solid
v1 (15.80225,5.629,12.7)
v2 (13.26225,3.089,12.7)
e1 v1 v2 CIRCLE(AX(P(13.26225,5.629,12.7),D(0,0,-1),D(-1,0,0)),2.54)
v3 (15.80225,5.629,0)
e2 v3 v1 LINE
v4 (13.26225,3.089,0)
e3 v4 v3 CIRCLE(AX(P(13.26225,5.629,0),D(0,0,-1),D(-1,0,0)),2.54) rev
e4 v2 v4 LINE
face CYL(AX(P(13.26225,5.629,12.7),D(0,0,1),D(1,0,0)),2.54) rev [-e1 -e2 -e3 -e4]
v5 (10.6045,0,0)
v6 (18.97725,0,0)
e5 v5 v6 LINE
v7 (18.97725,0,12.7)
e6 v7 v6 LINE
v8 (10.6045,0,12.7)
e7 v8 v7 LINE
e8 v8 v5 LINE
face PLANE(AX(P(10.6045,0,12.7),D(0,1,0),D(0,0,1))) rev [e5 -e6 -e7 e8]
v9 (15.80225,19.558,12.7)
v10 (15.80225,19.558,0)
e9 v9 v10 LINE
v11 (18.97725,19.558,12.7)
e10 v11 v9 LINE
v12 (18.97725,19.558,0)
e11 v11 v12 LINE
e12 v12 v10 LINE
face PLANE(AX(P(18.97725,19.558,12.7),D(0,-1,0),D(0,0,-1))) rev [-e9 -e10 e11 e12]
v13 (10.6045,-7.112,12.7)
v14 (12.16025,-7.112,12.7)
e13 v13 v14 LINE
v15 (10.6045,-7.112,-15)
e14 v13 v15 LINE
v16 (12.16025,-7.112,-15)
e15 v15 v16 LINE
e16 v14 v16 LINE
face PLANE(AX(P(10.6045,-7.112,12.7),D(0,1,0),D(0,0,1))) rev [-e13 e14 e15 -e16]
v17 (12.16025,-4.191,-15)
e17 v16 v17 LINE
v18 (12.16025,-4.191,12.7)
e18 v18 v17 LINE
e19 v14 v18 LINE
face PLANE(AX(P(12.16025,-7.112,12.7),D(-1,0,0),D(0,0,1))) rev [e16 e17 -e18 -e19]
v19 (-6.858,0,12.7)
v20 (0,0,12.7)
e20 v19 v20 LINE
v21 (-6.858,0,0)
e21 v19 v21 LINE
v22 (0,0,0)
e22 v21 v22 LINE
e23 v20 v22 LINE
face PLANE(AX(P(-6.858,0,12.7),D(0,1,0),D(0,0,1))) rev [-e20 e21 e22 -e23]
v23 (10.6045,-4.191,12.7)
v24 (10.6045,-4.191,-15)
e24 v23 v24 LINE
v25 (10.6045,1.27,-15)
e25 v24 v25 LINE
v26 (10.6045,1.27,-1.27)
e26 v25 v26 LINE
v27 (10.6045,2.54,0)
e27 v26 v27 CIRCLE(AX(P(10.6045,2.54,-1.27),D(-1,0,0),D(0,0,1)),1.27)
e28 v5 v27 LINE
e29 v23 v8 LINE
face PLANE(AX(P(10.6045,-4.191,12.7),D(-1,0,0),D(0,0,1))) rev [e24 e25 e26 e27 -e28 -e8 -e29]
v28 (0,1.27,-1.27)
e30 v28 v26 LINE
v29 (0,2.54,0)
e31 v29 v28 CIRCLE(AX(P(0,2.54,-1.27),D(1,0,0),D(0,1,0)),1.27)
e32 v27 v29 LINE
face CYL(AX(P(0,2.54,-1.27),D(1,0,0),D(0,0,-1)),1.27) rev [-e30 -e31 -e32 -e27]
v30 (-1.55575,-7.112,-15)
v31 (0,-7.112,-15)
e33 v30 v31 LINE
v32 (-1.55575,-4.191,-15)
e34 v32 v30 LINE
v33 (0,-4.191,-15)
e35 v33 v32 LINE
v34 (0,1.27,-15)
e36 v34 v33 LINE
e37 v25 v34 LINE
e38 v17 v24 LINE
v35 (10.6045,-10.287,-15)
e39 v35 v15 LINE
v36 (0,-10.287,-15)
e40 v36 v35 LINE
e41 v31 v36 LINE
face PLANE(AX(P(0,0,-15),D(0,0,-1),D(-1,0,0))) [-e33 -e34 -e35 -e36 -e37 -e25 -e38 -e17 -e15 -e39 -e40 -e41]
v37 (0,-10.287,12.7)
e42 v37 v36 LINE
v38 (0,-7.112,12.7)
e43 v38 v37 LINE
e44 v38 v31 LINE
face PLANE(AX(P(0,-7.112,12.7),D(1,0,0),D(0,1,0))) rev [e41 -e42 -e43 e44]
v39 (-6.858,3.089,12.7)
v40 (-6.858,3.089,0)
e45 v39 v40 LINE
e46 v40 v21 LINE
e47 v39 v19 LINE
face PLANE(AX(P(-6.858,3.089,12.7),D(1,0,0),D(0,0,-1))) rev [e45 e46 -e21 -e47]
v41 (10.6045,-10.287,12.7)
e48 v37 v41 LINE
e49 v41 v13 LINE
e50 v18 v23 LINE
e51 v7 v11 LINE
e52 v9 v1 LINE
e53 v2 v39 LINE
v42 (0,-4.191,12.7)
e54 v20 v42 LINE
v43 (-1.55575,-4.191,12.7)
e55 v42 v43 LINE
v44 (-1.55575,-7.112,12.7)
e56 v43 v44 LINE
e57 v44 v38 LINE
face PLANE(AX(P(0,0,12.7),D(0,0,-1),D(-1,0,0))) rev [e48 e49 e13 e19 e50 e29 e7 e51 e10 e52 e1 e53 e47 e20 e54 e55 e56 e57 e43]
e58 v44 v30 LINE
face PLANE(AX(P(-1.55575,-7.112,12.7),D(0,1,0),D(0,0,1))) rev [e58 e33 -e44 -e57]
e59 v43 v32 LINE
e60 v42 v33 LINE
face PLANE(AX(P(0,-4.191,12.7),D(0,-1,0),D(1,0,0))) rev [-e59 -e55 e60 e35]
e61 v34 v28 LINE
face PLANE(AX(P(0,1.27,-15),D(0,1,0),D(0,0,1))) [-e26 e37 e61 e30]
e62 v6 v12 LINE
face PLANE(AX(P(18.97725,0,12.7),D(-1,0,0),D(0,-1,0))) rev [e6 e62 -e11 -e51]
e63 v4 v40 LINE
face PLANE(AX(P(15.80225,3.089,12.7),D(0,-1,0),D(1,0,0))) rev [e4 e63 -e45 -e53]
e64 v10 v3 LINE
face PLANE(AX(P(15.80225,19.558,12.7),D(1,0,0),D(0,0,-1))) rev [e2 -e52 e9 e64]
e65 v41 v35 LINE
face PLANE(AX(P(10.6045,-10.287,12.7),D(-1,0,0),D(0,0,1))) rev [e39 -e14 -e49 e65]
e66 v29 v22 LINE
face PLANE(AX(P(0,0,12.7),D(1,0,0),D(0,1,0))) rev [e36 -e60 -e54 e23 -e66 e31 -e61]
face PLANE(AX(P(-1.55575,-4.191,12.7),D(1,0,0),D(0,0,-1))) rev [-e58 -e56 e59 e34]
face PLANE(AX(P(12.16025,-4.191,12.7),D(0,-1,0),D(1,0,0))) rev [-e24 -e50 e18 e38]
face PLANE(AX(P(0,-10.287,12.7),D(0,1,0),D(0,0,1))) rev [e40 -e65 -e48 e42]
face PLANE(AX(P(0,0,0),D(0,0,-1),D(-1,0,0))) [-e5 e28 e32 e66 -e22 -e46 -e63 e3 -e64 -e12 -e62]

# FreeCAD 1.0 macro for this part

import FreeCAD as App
import Part
import Sketcher
Q = App.Units.Quantity


def edges_at(feature, points):
    """Names of the edges that pass closest to the given points."""
    edges = feature.Shape.Edges
    near = lambda p: min(range(len(edges)), key=lambda i: edges[i].distToShape(Part.Vertex(*p))[0])
    return sorted({f"Edge{near(p) + 1}" for p in points})

doc = App.newDocument("Part")
body = doc.addObject("PartDesign::Body", "Body")

# Sketch on XY plane
sketch1 = doc.addObject("Sketcher::SketchObject", "Sketch")
body.addObject(sketch1)
sketch1.AttachmentSupport = (doc.XY_Plane, [""])
sketch1.MapMode = "FlatFace"
sketch1.addGeometry([
    Part.LineSegment(App.Vector(0, 0, 0), App.Vector(0, -4.191, 0)),  # 0
    Part.LineSegment(App.Vector(0, -4.191, 0), App.Vector(-1.55575, -4.191, 0)),  # 1
    Part.LineSegment(App.Vector(-1.55575, -4.191, 0), App.Vector(-1.55575, -7.112, 0)),  # 2
    Part.LineSegment(App.Vector(-1.55575, -7.112, 0), App.Vector(0, -7.112, 0)),  # 3
    Part.LineSegment(App.Vector(0, -7.112, 0), App.Vector(0, -10.287, 0)),  # 4
    Part.LineSegment(App.Vector(0, -10.287, 0), App.Vector(10.6045, -10.287, 0)),  # 5
    Part.LineSegment(App.Vector(10.6045, -10.287, 0), App.Vector(10.6045, -7.112, 0)),  # 6
    Part.LineSegment(App.Vector(10.6045, -7.112, 0), App.Vector(12.16025, -7.112, 0)),  # 7
    Part.LineSegment(App.Vector(12.16025, -7.112, 0), App.Vector(12.16025, -4.191, 0)),  # 8
    Part.LineSegment(App.Vector(12.16025, -4.191, 0), App.Vector(10.6045, -4.191, 0)),  # 9
    Part.LineSegment(App.Vector(10.6045, -4.191, 0), App.Vector(10.6045, 0, 0)),  # 10
    Part.LineSegment(App.Vector(10.6045, 0, 0), App.Vector(18.97725, 0, 0)),  # 11
    Part.LineSegment(App.Vector(18.97725, 0, 0), App.Vector(18.97725, 19.558, 0)),  # 12
    Part.LineSegment(App.Vector(18.97725, 19.558, 0), App.Vector(15.80225, 19.558, 0)),  # 13
    Part.LineSegment(App.Vector(15.80225, 19.558, 0), App.Vector(15.80225, 3.089, 0)),  # 14
    Part.LineSegment(App.Vector(15.80225, 3.089, 0), App.Vector(-6.858, 3.089, 0)),  # 15
    Part.LineSegment(App.Vector(-6.858, 3.089, 0), App.Vector(-6.858, 0, 0)),  # 16
    Part.LineSegment(App.Vector(-6.858, 0, 0), App.Vector(0, 0, 0)),  # 17
], False)
sketch1.addConstraint([
    Sketcher.Constraint("Coincident", 0, 2, 1, 1),
    Sketcher.Constraint("Coincident", 1, 2, 2, 1),
    Sketcher.Constraint("Coincident", 2, 2, 3, 1),
    Sketcher.Constraint("Coincident", 3, 2, 4, 1),
    Sketcher.Constraint("Coincident", 4, 2, 5, 1),
    Sketcher.Constraint("Coincident", 5, 2, 6, 1),
    Sketcher.Constraint("Coincident", 6, 2, 7, 1),
    Sketcher.Constraint("Coincident", 7, 2, 8, 1),
    Sketcher.Constraint("Coincident", 8, 2, 9, 1),
    Sketcher.Constraint("Coincident", 9, 2, 10, 1),
    Sketcher.Constraint("Coincident", 10, 2, 11, 1),
    Sketcher.Constraint("Coincident", 11, 2, 12, 1),
    Sketcher.Constraint("Coincident", 12, 2, 13, 1),
    Sketcher.Constraint("Coincident", 13, 2, 14, 1),
    Sketcher.Constraint("Coincident", 14, 2, 15, 1),
    Sketcher.Constraint("Coincident", 15, 2, 16, 1),
    Sketcher.Constraint("Coincident", 16, 2, 17, 1),
    Sketcher.Constraint("Coincident", 17, 2, 0, 1),
    Sketcher.Constraint("Vertical", 0),
    Sketcher.Constraint("Horizontal", 1),
    Sketcher.Constraint("Vertical", 2),
    Sketcher.Constraint("Horizontal", 3),
    Sketcher.Constraint("Vertical", 4),
    Sketcher.Constraint("Horizontal", 5),
    Sketcher.Constraint("Vertical", 6),
    Sketcher.Constraint("Horizontal", 7),
    Sketcher.Constraint("Vertical", 8),
    Sketcher.Constraint("Horizontal", 9),
    Sketcher.Constraint("Vertical", 10),
    Sketcher.Constraint("Horizontal", 11),
    Sketcher.Constraint("Vertical", 12),
    Sketcher.Constraint("Horizontal", 13),
    Sketcher.Constraint("Vertical", 14),
    Sketcher.Constraint("Horizontal", 15),
    Sketcher.Constraint("Vertical", 16),
    Sketcher.Constraint("Horizontal", 17),
    Sketcher.Constraint("Coincident", 17, 2, -1, 1),
    Sketcher.Constraint("PointOnObject", 3, 2, -2),
    Sketcher.Constraint("PointOnObject", 10, 2, -1),
    Sketcher.Constraint("Horizontal", 3, 2, 6, 2),
    Sketcher.Constraint("Horizontal", 1, 2, 8, 2),
    Sketcher.Constraint("Vertical", 6, 2, 9, 2),
    Sketcher.Constraint("Equal", 3, 7),
    Sketcher.Constraint("Equal", 13, 4),
    Sketcher.Constraint("DistanceX", 17, 1, 17, 2, Q("0.27 in")),
    Sketcher.Constraint("DistanceY", 12, 1, 12, 2, Q("0.77 in")),
    Sketcher.Constraint("DistanceX", 13, 2, 13, 1, Q("0.125 in")),
    Sketcher.Constraint("DistanceY", 0, 2, 0, 1, Q("0.165 in")),
    Sketcher.Constraint("DistanceY", 2, 2, 2, 1, Q("0.115 in")),
    Sketcher.Constraint("DistanceX", 5, 1, 5, 2, Q("0.4175 in")),
    Sketcher.Constraint("DistanceY", 14, 2, 14, 1, 16.469),
    Sketcher.Constraint("DistanceX", 1, 2, 1, 1, 1.55575),
    Sketcher.Constraint("DistanceX", 11, 1, 11, 2, 8.37275),
])
pad1 = doc.addObject("PartDesign::Pad", "Pad")
body.addObject(pad1)
pad1.Profile = sketch1
pad1.Length = Q("0.5 in")
doc.recompute()

fillet = doc.addObject("PartDesign::Fillet", "Fillet")
body.addObject(fillet)
fillet.Base = (pad1, edges_at(pad1, [(15.802, 3.089, 6.35)]))
fillet.Radius = Q("0.1 in")

# Sketch on XY plane
sketch2 = doc.addObject("Sketcher::SketchObject", "Sketch001")
body.addObject(sketch2)
sketch2.AttachmentSupport = (doc.XY_Plane, [""])
sketch2.MapMode = "FlatFace"
sketch2.addGeometry([
    Part.LineSegment(App.Vector(0, 1.27, 0), App.Vector(0, -4.191, 0)),  # 0
    Part.LineSegment(App.Vector(0, -4.191, 0), App.Vector(-1.55575, -4.191, 0)),  # 1
    Part.LineSegment(App.Vector(-1.55575, -4.191, 0), App.Vector(-1.55575, -7.112, 0)),  # 2
    Part.LineSegment(App.Vector(-1.55575, -7.112, 0), App.Vector(0, -7.112, 0)),  # 3
    Part.LineSegment(App.Vector(0, -7.112, 0), App.Vector(0, -10.287, 0)),  # 4
    Part.LineSegment(App.Vector(0, -10.287, 0), App.Vector(10.6045, -10.287, 0)),  # 5
    Part.LineSegment(App.Vector(10.6045, -10.287, 0), App.Vector(10.6045, -7.112, 0)),  # 6
    Part.LineSegment(App.Vector(10.6045, -7.112, 0), App.Vector(12.16025, -7.112, 0)),  # 7
    Part.LineSegment(App.Vector(12.16025, -7.112, 0), App.Vector(12.16025, -4.191, 0)),  # 8
    Part.LineSegment(App.Vector(12.16025, -4.191, 0), App.Vector(10.6045, -4.191, 0)),  # 9
    Part.LineSegment(App.Vector(10.6045, -4.191, 0), App.Vector(10.6045, 1.27, 0)),  # 10
    Part.LineSegment(App.Vector(10.6045, 1.27, 0), App.Vector(0, 1.27, 0)),  # 11
], False)
sketch2.addConstraint([
    Sketcher.Constraint("Coincident", 0, 2, 1, 1),
    Sketcher.Constraint("Coincident", 1, 2, 2, 1),
    Sketcher.Constraint("Coincident", 2, 2, 3, 1),
    Sketcher.Constraint("Coincident", 3, 2, 4, 1),
    Sketcher.Constraint("Coincident", 4, 2, 5, 1),
    Sketcher.Constraint("Coincident", 5, 2, 6, 1),
    Sketcher.Constraint("Coincident", 6, 2, 7, 1),
    Sketcher.Constraint("Coincident", 7, 2, 8, 1),
    Sketcher.Constraint("Coincident", 8, 2, 9, 1),
    Sketcher.Constraint("Coincident", 9, 2, 10, 1),
    Sketcher.Constraint("Coincident", 10, 2, 11, 1),
    Sketcher.Constraint("Coincident", 11, 2, 0, 1),
    Sketcher.Constraint("Vertical", 0),
    Sketcher.Constraint("Horizontal", 1),
    Sketcher.Constraint("Vertical", 2),
    Sketcher.Constraint("Horizontal", 3),
    Sketcher.Constraint("Vertical", 4),
    Sketcher.Constraint("Horizontal", 5),
    Sketcher.Constraint("Vertical", 6),
    Sketcher.Constraint("Horizontal", 7),
    Sketcher.Constraint("Vertical", 8),
    Sketcher.Constraint("Horizontal", 9),
    Sketcher.Constraint("Vertical", 10),
    Sketcher.Constraint("Horizontal", 11),
    Sketcher.Constraint("PointOnObject", 0, 2, -2),
    Sketcher.Constraint("PointOnObject", 3, 2, -2),
    Sketcher.Constraint("Horizontal", 3, 2, 6, 2),
    Sketcher.Constraint("Horizontal", 1, 2, 8, 2),
    Sketcher.Constraint("Vertical", 6, 2, 9, 2),
    Sketcher.Constraint("Equal", 3, 7),
    Sketcher.Constraint("DistanceY", 0, 2, 0, 1, Q("0.215 in")),
    Sketcher.Constraint("DistanceY", 2, 2, 2, 1, Q("0.115 in")),
    Sketcher.Constraint("DistanceY", 4, 2, 4, 1, Q("0.125 in")),
    Sketcher.Constraint("DistanceY", 2, 2, -1, 1, Q("0.28 in")),
    Sketcher.Constraint("DistanceX", 5, 1, 5, 2, Q("0.4175 in")),
    Sketcher.Constraint("DistanceX", 1, 2, 1, 1, 1.55575),
])
pad2 = doc.addObject("PartDesign::Pad", "Pad001")
body.addObject(pad2)
pad2.Profile = sketch2
pad2.Length = 15
pad2.Reversed = True
doc.recompute()

fillet2 = doc.addObject("PartDesign::Fillet", "Fillet001")
body.addObject(fillet2)
fillet2.Base = (pad2, edges_at(pad2, [(5.302, 1.27, 0)]))
fillet2.Radius = Q("0.05 in")

doc.recompute()
